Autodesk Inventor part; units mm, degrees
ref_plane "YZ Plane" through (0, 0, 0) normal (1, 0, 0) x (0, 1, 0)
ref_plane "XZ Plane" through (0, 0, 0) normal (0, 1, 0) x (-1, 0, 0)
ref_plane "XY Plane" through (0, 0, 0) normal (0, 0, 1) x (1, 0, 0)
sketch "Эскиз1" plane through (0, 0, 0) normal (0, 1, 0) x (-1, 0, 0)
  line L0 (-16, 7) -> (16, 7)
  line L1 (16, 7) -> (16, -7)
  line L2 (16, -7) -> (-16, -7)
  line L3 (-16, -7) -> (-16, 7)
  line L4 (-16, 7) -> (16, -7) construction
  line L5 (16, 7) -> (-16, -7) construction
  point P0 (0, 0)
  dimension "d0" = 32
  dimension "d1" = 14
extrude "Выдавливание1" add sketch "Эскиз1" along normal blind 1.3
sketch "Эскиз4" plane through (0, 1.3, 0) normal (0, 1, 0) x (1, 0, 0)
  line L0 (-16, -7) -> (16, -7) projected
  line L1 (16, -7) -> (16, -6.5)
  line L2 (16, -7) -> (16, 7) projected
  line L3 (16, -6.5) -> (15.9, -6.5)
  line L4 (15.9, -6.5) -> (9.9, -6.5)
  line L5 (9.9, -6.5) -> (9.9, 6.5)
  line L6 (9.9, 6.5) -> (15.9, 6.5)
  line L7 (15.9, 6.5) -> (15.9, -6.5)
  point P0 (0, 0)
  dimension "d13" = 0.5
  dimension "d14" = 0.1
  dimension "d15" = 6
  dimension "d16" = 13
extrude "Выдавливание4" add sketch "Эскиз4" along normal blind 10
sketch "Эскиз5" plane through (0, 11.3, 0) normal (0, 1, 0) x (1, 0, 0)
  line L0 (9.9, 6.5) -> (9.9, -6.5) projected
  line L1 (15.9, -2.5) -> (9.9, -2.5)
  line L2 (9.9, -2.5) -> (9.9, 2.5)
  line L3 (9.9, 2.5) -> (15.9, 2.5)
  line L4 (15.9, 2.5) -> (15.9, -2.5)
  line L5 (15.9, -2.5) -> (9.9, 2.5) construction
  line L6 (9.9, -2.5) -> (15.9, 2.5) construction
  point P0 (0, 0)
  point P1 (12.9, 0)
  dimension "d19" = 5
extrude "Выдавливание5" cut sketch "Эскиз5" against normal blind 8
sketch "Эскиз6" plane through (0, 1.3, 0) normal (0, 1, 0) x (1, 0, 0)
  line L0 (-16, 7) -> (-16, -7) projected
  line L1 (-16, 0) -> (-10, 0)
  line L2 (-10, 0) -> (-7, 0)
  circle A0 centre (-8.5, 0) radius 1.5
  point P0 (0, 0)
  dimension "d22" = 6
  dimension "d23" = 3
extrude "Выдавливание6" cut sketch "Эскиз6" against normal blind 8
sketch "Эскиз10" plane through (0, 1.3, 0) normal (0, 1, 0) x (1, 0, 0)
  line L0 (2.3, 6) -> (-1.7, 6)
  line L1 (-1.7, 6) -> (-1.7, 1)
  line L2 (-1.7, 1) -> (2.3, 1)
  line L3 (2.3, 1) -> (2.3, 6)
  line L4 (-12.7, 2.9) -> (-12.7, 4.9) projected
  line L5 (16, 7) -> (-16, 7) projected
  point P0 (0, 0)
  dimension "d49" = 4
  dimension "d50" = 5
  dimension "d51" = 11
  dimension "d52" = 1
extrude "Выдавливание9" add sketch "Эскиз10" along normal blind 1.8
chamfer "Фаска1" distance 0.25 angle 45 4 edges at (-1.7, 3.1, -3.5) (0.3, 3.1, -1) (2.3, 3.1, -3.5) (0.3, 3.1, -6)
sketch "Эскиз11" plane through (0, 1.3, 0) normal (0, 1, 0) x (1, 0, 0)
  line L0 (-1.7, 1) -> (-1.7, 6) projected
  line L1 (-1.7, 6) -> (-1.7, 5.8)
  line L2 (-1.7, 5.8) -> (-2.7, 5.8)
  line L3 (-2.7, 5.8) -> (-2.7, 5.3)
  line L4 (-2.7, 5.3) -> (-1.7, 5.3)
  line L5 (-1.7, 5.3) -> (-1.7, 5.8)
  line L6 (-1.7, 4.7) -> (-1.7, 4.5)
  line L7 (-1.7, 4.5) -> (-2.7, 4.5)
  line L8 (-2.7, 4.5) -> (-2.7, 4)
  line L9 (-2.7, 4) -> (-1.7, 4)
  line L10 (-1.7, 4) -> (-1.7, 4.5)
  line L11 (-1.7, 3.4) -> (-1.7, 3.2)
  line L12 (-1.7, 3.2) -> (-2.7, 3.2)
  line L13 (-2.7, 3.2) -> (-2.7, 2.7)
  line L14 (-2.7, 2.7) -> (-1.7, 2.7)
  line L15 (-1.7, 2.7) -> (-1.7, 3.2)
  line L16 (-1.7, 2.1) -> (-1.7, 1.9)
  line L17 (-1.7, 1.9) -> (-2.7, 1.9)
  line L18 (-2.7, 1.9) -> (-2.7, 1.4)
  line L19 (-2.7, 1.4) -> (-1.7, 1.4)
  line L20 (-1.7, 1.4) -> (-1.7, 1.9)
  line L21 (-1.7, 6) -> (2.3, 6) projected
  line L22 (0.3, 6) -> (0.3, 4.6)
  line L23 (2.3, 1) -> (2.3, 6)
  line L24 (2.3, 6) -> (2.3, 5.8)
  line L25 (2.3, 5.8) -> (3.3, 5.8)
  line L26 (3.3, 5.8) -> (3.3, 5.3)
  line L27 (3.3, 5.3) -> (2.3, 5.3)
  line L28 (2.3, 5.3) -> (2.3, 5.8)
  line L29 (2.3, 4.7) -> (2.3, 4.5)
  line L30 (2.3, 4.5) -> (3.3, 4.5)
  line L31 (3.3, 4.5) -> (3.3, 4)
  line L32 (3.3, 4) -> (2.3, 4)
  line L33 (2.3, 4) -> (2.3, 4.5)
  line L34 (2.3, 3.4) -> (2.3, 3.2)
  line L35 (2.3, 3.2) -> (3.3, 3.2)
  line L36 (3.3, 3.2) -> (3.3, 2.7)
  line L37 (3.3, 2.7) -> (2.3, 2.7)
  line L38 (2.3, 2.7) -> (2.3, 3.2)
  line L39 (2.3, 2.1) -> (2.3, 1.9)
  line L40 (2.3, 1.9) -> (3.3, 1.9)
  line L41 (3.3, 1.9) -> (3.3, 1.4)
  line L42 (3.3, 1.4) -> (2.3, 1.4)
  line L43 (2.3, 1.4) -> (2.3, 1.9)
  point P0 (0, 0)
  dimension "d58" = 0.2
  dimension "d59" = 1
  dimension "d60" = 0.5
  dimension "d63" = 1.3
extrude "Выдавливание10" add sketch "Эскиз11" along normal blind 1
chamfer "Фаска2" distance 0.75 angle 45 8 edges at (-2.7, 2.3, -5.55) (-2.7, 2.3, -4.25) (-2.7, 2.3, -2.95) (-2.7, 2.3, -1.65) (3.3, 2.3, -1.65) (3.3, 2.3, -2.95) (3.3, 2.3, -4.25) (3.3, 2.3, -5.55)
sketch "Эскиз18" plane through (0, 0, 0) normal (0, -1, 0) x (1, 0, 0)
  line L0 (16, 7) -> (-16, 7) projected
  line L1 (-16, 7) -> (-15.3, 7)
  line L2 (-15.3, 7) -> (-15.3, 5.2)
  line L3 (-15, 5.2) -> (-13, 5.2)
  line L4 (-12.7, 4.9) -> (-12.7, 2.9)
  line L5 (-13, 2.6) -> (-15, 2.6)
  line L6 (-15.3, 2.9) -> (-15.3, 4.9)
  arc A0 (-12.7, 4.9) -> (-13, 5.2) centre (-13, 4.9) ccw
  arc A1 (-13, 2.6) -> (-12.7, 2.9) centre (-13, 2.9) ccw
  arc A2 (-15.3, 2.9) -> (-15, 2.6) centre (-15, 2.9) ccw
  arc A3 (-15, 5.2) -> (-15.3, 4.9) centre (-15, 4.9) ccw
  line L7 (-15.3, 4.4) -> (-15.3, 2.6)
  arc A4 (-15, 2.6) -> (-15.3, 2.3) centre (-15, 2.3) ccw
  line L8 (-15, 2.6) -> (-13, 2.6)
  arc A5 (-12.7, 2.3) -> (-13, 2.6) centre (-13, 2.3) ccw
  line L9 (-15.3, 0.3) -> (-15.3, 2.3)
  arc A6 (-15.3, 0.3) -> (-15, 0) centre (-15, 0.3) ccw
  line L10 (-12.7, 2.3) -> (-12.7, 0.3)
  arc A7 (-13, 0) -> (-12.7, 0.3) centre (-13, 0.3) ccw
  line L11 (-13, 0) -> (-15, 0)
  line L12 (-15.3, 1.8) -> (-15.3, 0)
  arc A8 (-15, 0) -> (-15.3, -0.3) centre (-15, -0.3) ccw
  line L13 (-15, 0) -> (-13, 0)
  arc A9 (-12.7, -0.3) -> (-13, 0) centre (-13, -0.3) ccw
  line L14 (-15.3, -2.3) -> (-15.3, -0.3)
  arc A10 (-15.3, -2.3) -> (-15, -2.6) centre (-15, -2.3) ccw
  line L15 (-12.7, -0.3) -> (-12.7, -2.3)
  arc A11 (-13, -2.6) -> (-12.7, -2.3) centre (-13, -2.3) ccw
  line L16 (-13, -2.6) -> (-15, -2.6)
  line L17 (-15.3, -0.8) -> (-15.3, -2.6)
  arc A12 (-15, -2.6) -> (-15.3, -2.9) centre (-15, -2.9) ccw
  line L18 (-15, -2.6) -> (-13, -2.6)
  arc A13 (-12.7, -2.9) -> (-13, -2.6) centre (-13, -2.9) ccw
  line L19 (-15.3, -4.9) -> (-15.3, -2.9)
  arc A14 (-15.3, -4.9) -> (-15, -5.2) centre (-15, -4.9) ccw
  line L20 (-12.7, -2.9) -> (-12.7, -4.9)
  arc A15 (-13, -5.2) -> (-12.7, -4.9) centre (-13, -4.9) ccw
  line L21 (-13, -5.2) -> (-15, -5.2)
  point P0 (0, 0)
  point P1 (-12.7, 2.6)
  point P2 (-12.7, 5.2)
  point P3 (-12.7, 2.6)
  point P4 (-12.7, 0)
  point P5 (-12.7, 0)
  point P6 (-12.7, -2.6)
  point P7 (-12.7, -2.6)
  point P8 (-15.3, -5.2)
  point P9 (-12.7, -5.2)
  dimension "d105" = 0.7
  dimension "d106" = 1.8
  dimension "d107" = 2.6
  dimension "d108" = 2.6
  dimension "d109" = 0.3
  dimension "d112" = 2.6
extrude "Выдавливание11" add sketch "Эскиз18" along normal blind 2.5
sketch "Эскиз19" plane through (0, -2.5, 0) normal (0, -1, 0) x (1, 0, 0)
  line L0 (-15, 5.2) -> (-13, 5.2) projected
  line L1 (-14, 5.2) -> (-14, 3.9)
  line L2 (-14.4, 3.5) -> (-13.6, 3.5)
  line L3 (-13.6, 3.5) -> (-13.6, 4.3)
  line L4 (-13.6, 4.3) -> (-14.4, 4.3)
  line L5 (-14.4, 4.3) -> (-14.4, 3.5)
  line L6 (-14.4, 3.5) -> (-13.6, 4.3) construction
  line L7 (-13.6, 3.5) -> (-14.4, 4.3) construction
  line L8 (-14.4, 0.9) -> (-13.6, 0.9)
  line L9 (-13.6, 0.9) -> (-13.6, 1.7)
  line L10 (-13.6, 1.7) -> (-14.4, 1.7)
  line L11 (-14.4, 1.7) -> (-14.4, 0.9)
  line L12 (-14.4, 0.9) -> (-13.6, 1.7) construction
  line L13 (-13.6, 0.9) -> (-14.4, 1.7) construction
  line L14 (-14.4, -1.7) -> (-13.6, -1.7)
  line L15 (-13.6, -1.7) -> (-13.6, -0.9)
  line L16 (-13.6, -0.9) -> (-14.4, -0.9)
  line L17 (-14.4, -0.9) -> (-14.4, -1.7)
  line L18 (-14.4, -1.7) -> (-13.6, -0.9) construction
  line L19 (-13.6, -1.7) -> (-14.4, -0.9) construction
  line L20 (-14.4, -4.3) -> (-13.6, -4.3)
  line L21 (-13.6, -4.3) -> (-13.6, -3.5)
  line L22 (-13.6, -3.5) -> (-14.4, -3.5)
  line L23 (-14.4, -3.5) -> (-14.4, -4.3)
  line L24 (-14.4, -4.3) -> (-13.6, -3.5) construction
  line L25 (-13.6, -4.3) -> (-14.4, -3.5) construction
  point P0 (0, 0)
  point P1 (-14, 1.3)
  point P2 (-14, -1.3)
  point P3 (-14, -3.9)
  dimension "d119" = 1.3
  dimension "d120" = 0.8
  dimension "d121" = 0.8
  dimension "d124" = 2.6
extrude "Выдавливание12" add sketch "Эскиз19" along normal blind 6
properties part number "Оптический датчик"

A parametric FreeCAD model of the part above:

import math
import FreeCAD as App
import Part
import Sketcher
from FreeCAD import Vector
Q = App.Units.Quantity


def edges_at(feature, points):
    """Names of the edges that pass closest to the given points."""
    edges = feature.Shape.Edges
    near = lambda p: min(range(len(edges)), key=lambda i: edges[i].distToShape(Part.Vertex(*p))[0])
    return sorted({f"Edge{near(p) + 1}" for p in points})

doc = App.newDocument("Part")
body = doc.addObject("PartDesign::Body", "Body")

sketch1 = doc.addObject("Sketcher::SketchObject", "Sketch")
body.addObject(sketch1)
sketch1.AttachmentSupport = (doc.XZ_Plane, [""])
sketch1.MapMode = "FlatFace"
sketch1.addGeometry([
    Part.LineSegment(Vector(-16, 7, 0), Vector(16, 7, 0)),
    Part.LineSegment(Vector(16, 7, 0), Vector(16, -7, 0)),
    Part.LineSegment(Vector(16, -7, 0), Vector(-16, -7, 0)),
    Part.LineSegment(Vector(-16, -7, 0), Vector(-16, 7, 0)),
], False)
sketch1.addConstraint([
    Sketcher.Constraint("Coincident", 0, 2, 1, 1),
    Sketcher.Constraint("Coincident", 1, 2, 2, 1),
    Sketcher.Constraint("Coincident", 2, 2, 3, 1),
    Sketcher.Constraint("Coincident", 3, 2, 0, 1),
    Sketcher.Constraint("Horizontal", 0),
    Sketcher.Constraint("Vertical", 1),
    Sketcher.Constraint("Horizontal", 2),
    Sketcher.Constraint("Vertical", 3),
    Sketcher.Constraint("Symmetric", 0, 2, 2, 2, -1, 1),
    Sketcher.Constraint("DistanceX", 0, 1, 0, 2, Q("32 mm")),
    Sketcher.Constraint("DistanceY", 1, 2, 1, 1, Q("14 mm")),
])
pad1 = doc.addObject("PartDesign::Pad", "Pad")
body.addObject(pad1)
pad1.Profile = sketch1
pad1.Length = 1.3
pad1.Reversed = True

sketch2 = doc.addObject("Sketcher::SketchObject", "Sketch001")
body.addObject(sketch2)
sketch2.AttachmentSupport = (doc.XZ_Plane, [""])
sketch2.MapMode = "FlatFace"
sketch2.AttachmentOffset = App.Placement(Vector(0, 0, -1.3), App.Rotation())
sketch2.addGeometry([
    Part.LineSegment(Vector(10, 6, 0), Vector(16, 6, 0)),
    Part.LineSegment(Vector(16, 6, 0), Vector(16, -6, 0)),
    Part.LineSegment(Vector(16, -6, 0), Vector(10, -6, 0)),
    Part.LineSegment(Vector(10, -6, 0), Vector(10, 6, 0)),
], False)
sketch2.addConstraint([
    Sketcher.Constraint("Coincident", 0, 2, 1, 1),
    Sketcher.Constraint("Coincident", 1, 2, 2, 1),
    Sketcher.Constraint("Coincident", 2, 2, 3, 1),
    Sketcher.Constraint("Coincident", 3, 2, 0, 1),
    Sketcher.Constraint("Horizontal", 0),
    Sketcher.Constraint("Vertical", 1),
    Sketcher.Constraint("Horizontal", 2),
    Sketcher.Constraint("Vertical", 3),
    Sketcher.Constraint("DistanceX", 0, 1, 0, 2, Q("6 mm")),
    Sketcher.Constraint("DistanceY", 1, 2, 1, 1, Q("13 mm")),
    Sketcher.Constraint("DistanceX", -1, 1, 0, 2, Q("15.9 mm")),
    Sketcher.Constraint("DistanceY", -1, 1, 0, 2, Q("6.5 mm")),
])
pad2 = doc.addObject("PartDesign::Pad", "Pad001")
body.addObject(pad2)
pad2.Profile = sketch2
pad2.Length = 10
pad2.Reversed = True

sketch3 = doc.addObject("Sketcher::SketchObject", "Sketch002")
body.addObject(sketch3)
sketch3.AttachmentSupport = (doc.XZ_Plane, [""])
sketch3.MapMode = "FlatFace"
sketch3.AttachmentOffset = App.Placement(Vector(0, 0, -11.3), App.Rotation())
sketch3.addGeometry([
    Part.LineSegment(Vector(16, -2, 0), Vector(10, -2, 0)),
    Part.LineSegment(Vector(10, -2, 0), Vector(10, 2, 0)),
    Part.LineSegment(Vector(10, 2, 0), Vector(16, 2, 0)),
    Part.LineSegment(Vector(16, 2, 0), Vector(16, -2, 0)),
], False)
sketch3.addConstraint([
    Sketcher.Constraint("Coincident", 0, 2, 1, 1),
    Sketcher.Constraint("Coincident", 1, 2, 2, 1),
    Sketcher.Constraint("Coincident", 2, 2, 3, 1),
    Sketcher.Constraint("Coincident", 3, 2, 0, 1),
    Sketcher.Constraint("Horizontal", 0),
    Sketcher.Constraint("Vertical", 1),
    Sketcher.Constraint("Horizontal", 2),
    Sketcher.Constraint("Vertical", 3),
    Sketcher.Constraint("DistanceY", 1, 1, 1, 2, Q("5 mm")),
    Sketcher.Constraint("DistanceX", 0, 2, 0, 1, Q("6 mm")),
    Sketcher.Constraint("DistanceX", -1, 1, 0, 2, Q("9.9 mm")),
    Sketcher.Constraint("DistanceY", 0, 2, -1, 1, Q("2.5 mm")),
])
pocket1 = doc.addObject("PartDesign::Pocket", "Pocket")
body.addObject(pocket1)
pocket1.Profile = sketch3
pocket1.Length = 8
pocket1.Reversed = True

sketch4 = doc.addObject("Sketcher::SketchObject", "Sketch003")
body.addObject(sketch4)
sketch4.AttachmentSupport = (doc.XZ_Plane, [""])
sketch4.MapMode = "FlatFace"
sketch4.AttachmentOffset = App.Placement(Vector(0, 0, -1.3), App.Rotation())
sketch4.addGeometry(Part.Circle(Vector(-8.5, 0, 0), Vector(0, 0, 1), 1.5), False)
sketch4.addConstraint([
    Sketcher.Constraint("PointOnObject", 0, 3, -1),
    Sketcher.Constraint("Diameter", 0, Q("3 mm")),
    Sketcher.Constraint("DistanceX", 0, 3, -1, 1, Q("8.5 mm")),
])
pocket2 = doc.addObject("PartDesign::Pocket", "Pocket001")
body.addObject(pocket2)
pocket2.Profile = sketch4
pocket2.Length = 8
pocket2.Reversed = True

sketch5 = doc.addObject("Sketcher::SketchObject", "Sketch004")
body.addObject(sketch5)
sketch5.AttachmentSupport = (doc.XZ_Plane, [""])
sketch5.MapMode = "FlatFace"
sketch5.AttachmentOffset = App.Placement(Vector(0, 0, -1.3), App.Rotation())
sketch5.addGeometry([
    Part.LineSegment(Vector(2.3, -1, 0), Vector(2.3, -6, 0)),
    Part.LineSegment(Vector(2.3, -6, 0), Vector(-1.7, -6, 0)),
    Part.LineSegment(Vector(-1.7, -6, 0), Vector(-1.7, -1, 0)),
    Part.LineSegment(Vector(-1.7, -1, 0), Vector(2.3, -1, 0)),
], False)
sketch5.addConstraint([
    Sketcher.Constraint("Coincident", 0, 2, 1, 1),
    Sketcher.Constraint("Coincident", 1, 2, 2, 1),
    Sketcher.Constraint("Coincident", 2, 2, 3, 1),
    Sketcher.Constraint("Coincident", 3, 2, 0, 1),
    Sketcher.Constraint("Vertical", 0),
    Sketcher.Constraint("Horizontal", 1),
    Sketcher.Constraint("Vertical", 2),
    Sketcher.Constraint("Horizontal", 3),
    Sketcher.Constraint("DistanceX", 1, 2, 1, 1, Q("4 mm")),
    Sketcher.Constraint("DistanceY", 0, 2, 0, 1, Q("5 mm")),
    Sketcher.Constraint("DistanceY", 2, 2, -1, 1, Q("1 mm")),
    Sketcher.Constraint("DistanceX", -1, 1, 0, 2, Q("2.3 mm")),
])
pad3 = doc.addObject("PartDesign::Pad", "Pad002")
body.addObject(pad3)
pad3.Profile = sketch5
pad3.Length = 1.8
pad3.Reversed = True
doc.recompute()

chamfer = doc.addObject("PartDesign::Chamfer", "Chamfer")
body.addObject(chamfer)
chamfer.Base = (pad3, edges_at(pad3, [
    (-1.7, 3.1, -3.5),
    (0.3, 3.1, -1),
    (2.3, 3.1, -3.5),
    (0.3, 3.1, -6),
]))
chamfer.Size = 0.25

sketch6 = doc.addObject("Sketcher::SketchObject", "Sketch005")
body.addObject(sketch6)
sketch6.AttachmentSupport = (doc.XZ_Plane, [""])
sketch6.MapMode = "FlatFace"
sketch6.AttachmentOffset = App.Placement(Vector(0, 0, -1.3), App.Rotation())
sketch6.addGeometry([
    Part.LineSegment(Vector(-2.7, -1.4, 0), Vector(-1.7, -1.4, 0)),
    Part.LineSegment(Vector(-1.7, -1.4, 0), Vector(-1.7, -1.9, 0)),
    Part.LineSegment(Vector(-1.7, -1.9, 0), Vector(-2.7, -1.9, 0)),
    Part.LineSegment(Vector(-2.7, -1.9, 0), Vector(-2.7, -1.4, 0)),
    Part.LineSegment(Vector(3.3, -1.9, 0), Vector(2.3, -1.9, 0)),
    Part.LineSegment(Vector(2.3, -1.9, 0), Vector(2.3, -1.4, 0)),
    Part.LineSegment(Vector(2.3, -1.4, 0), Vector(3.3, -1.4, 0)),
    Part.LineSegment(Vector(3.3, -1.4, 0), Vector(3.3, -1.9, 0)),
    Part.LineSegment(Vector(3.3, -3.2, 0), Vector(2.3, -3.2, 0)),
    Part.LineSegment(Vector(2.3, -3.2, 0), Vector(2.3, -2.7, 0)),
    Part.LineSegment(Vector(2.3, -2.7, 0), Vector(3.3, -2.7, 0)),
    Part.LineSegment(Vector(3.3, -2.7, 0), Vector(3.3, -3.2, 0)),
    Part.LineSegment(Vector(3.3, -4.5, 0), Vector(2.3, -4.5, 0)),
    Part.LineSegment(Vector(2.3, -4.5, 0), Vector(2.3, -4, 0)),
    Part.LineSegment(Vector(2.3, -4, 0), Vector(3.3, -4, 0)),
    Part.LineSegment(Vector(3.3, -4, 0), Vector(3.3, -4.5, 0)),
    Part.LineSegment(Vector(3.3, -5.8, 0), Vector(2.3, -5.8, 0)),
    Part.LineSegment(Vector(2.3, -5.8, 0), Vector(2.3, -5.3, 0)),
    Part.LineSegment(Vector(2.3, -5.3, 0), Vector(3.3, -5.3, 0)),
    Part.LineSegment(Vector(3.3, -5.3, 0), Vector(3.3, -5.8, 0)),
    Part.LineSegment(Vector(-2.7, -5.3, 0), Vector(-1.7, -5.3, 0)),
    Part.LineSegment(Vector(-1.7, -5.3, 0), Vector(-1.7, -5.8, 0)),
    Part.LineSegment(Vector(-1.7, -5.8, 0), Vector(-2.7, -5.8, 0)),
    Part.LineSegment(Vector(-2.7, -5.8, 0), Vector(-2.7, -5.3, 0)),
    Part.LineSegment(Vector(-2.7, -4, 0), Vector(-1.7, -4, 0)),
    Part.LineSegment(Vector(-1.7, -4, 0), Vector(-1.7, -4.5, 0)),
    Part.LineSegment(Vector(-1.7, -4.5, 0), Vector(-2.7, -4.5, 0)),
    Part.LineSegment(Vector(-2.7, -4.5, 0), Vector(-2.7, -4, 0)),
    Part.LineSegment(Vector(-2.7, -2.7, 0), Vector(-1.7, -2.7, 0)),
    Part.LineSegment(Vector(-1.7, -2.7, 0), Vector(-1.7, -3.2, 0)),
    Part.LineSegment(Vector(-1.7, -3.2, 0), Vector(-2.7, -3.2, 0)),
    Part.LineSegment(Vector(-2.7, -3.2, 0), Vector(-2.7, -2.7, 0)),
], False)
sketch6.addConstraint([
    Sketcher.Constraint("Coincident", 0, 2, 1, 1),
    Sketcher.Constraint("Coincident", 1, 2, 2, 1),
    Sketcher.Constraint("Coincident", 2, 2, 3, 1),
    Sketcher.Constraint("Coincident", 3, 2, 0, 1),
    Sketcher.Constraint("Coincident", 4, 2, 5, 1),
    Sketcher.Constraint("Coincident", 5, 2, 6, 1),
    Sketcher.Constraint("Coincident", 6, 2, 7, 1),
    Sketcher.Constraint("Coincident", 7, 2, 4, 1),
    Sketcher.Constraint("Coincident", 8, 2, 9, 1),
    Sketcher.Constraint("Coincident", 9, 2, 10, 1),
    Sketcher.Constraint("Coincident", 10, 2, 11, 1),
    Sketcher.Constraint("Coincident", 11, 2, 8, 1),
    Sketcher.Constraint("Coincident", 12, 2, 13, 1),
    Sketcher.Constraint("Coincident", 13, 2, 14, 1),
    Sketcher.Constraint("Coincident", 14, 2, 15, 1),
    Sketcher.Constraint("Coincident", 15, 2, 12, 1),
    Sketcher.Constraint("Coincident", 16, 2, 17, 1),
    Sketcher.Constraint("Coincident", 17, 2, 18, 1),
    Sketcher.Constraint("Coincident", 18, 2, 19, 1),
    Sketcher.Constraint("Coincident", 19, 2, 16, 1),
    Sketcher.Constraint("Coincident", 20, 2, 21, 1),
    Sketcher.Constraint("Coincident", 21, 2, 22, 1),
    Sketcher.Constraint("Coincident", 22, 2, 23, 1),
    Sketcher.Constraint("Coincident", 23, 2, 20, 1),
    Sketcher.Constraint("Coincident", 24, 2, 25, 1),
    Sketcher.Constraint("Coincident", 25, 2, 26, 1),
    Sketcher.Constraint("Coincident", 26, 2, 27, 1),
    Sketcher.Constraint("Coincident", 27, 2, 24, 1),
    Sketcher.Constraint("Coincident", 28, 2, 29, 1),
    Sketcher.Constraint("Coincident", 29, 2, 30, 1),
    Sketcher.Constraint("Coincident", 30, 2, 31, 1),
    Sketcher.Constraint("Coincident", 31, 2, 28, 1),
    Sketcher.Constraint("Horizontal", 0),
    Sketcher.Constraint("Vertical", 1),
    Sketcher.Constraint("Horizontal", 2),
    Sketcher.Constraint("Vertical", 3),
    Sketcher.Constraint("Horizontal", 4),
    Sketcher.Constraint("Vertical", 5),
    Sketcher.Constraint("Horizontal", 6),
    Sketcher.Constraint("Vertical", 7),
    Sketcher.Constraint("Horizontal", 8),
    Sketcher.Constraint("Vertical", 9),
    Sketcher.Constraint("Horizontal", 10),
    Sketcher.Constraint("Vertical", 11),
    Sketcher.Constraint("Horizontal", 12),
    Sketcher.Constraint("Vertical", 13),
    Sketcher.Constraint("Horizontal", 14),
    Sketcher.Constraint("Vertical", 15),
    Sketcher.Constraint("Horizontal", 16),
    Sketcher.Constraint("Vertical", 17),
    Sketcher.Constraint("Horizontal", 18),
    Sketcher.Constraint("Vertical", 19),
    Sketcher.Constraint("Horizontal", 20),
    Sketcher.Constraint("Vertical", 21),
    Sketcher.Constraint("Horizontal", 22),
    Sketcher.Constraint("Vertical", 23),
    Sketcher.Constraint("Horizontal", 24),
    Sketcher.Constraint("Vertical", 25),
    Sketcher.Constraint("Horizontal", 26),
    Sketcher.Constraint("Vertical", 27),
    Sketcher.Constraint("Horizontal", 28),
    Sketcher.Constraint("Vertical", 29),
    Sketcher.Constraint("Horizontal", 30),
    Sketcher.Constraint("Vertical", 31),
    Sketcher.Constraint("Horizontal", 2, 2, 4, 2),
    Sketcher.Constraint("Horizontal", 3, 2, 5, 2),
    Sketcher.Constraint("Horizontal", 18, 2, 20, 2),
    Sketcher.Constraint("Horizontal", 19, 2, 21, 2),
    Sketcher.Constraint("Horizontal", 14, 2, 24, 2),
    Sketcher.Constraint("Horizontal", 15, 2, 25, 2),
    Sketcher.Constraint("Horizontal", 10, 2, 28, 2),
    Sketcher.Constraint("Horizontal", 11, 2, 29, 2),
    Sketcher.Constraint("Vertical", 5, 2, 8, 2),
    Sketcher.Constraint("Vertical", 7, 2, 10, 2),
    Sketcher.Constraint("Vertical", 9, 2, 12, 2),
    Sketcher.Constraint("Vertical", 11, 2, 14, 2),
    Sketcher.Constraint("Vertical", 13, 2, 16, 2),
    Sketcher.Constraint("Vertical", 15, 2, 18, 2),
    Sketcher.Constraint("Vertical", 1, 2, 20, 2),
    Sketcher.Constraint("Vertical", 3, 2, 22, 2),
    Sketcher.Constraint("Vertical", 21, 2, 24, 2),
    Sketcher.Constraint("Vertical", 23, 2, 26, 2),
    Sketcher.Constraint("Vertical", 25, 2, 28, 2),
    Sketcher.Constraint("Vertical", 27, 2, 30, 2),
    Sketcher.Constraint("Equal", 2, 4),
    Sketcher.Constraint("Equal", 7, 9),
    Sketcher.Constraint("Equal", 11, 13),
    Sketcher.Constraint("Equal", 15, 17),
    Sketcher.Constraint("DistanceX", 0, 1, 0, 2, Q("1 mm")),
    Sketcher.Constraint("DistanceY", 1, 2, 1, 1, Q("0.5 mm")),
    Sketcher.Constraint("DistanceY", 8, 2, 4, 2, Q("1.3 mm")),
    Sketcher.Constraint("DistanceY", 12, 2, 8, 2, Q("1.3 mm")),
    Sketcher.Constraint("DistanceY", 16, 2, 12, 2, Q("1.3 mm")),
    Sketcher.Constraint("DistanceY", 13, 2, -1, 1, Q("4 mm")),
    Sketcher.Constraint("DistanceX", 1, 2, 4, 2, Q("4 mm")),
    Sketcher.Constraint("DistanceX", 0, 2, -1, 1, Q("1.7 mm")),
])
pad4 = doc.addObject("PartDesign::Pad", "Pad003")
body.addObject(pad4)
pad4.Profile = sketch6
pad4.Length = 1
pad4.Reversed = True
doc.recompute()

chamfer2 = doc.addObject("PartDesign::Chamfer", "Chamfer001")
body.addObject(chamfer2)
chamfer2.Base = (pad4, edges_at(pad4, [
    (-2.7, 2.3, -5.55),
    (-2.7, 2.3, -4.25),
    (-2.7, 2.3, -2.95),
    (-2.7, 2.3, -1.65),
    (3.3, 2.3, -1.65),
    (3.3, 2.3, -2.95),
    (3.3, 2.3, -4.25),
    (3.3, 2.3, -5.55),
]))
chamfer2.Size = 0.75

sketch7 = doc.addObject("Sketcher::SketchObject", "Sketch006")
body.addObject(sketch7)
sketch7.AttachmentSupport = (doc.XZ_Plane, [""])
sketch7.MapMode = "FlatFace"
sketch7.addGeometry([
    Part.LineSegment(Vector(-13, 5.2, 0), Vector(-15, 5.2, 0)),
    Part.ArcOfCircle(Part.Circle(Vector(-15, 4.9, 0), Vector(0, 0, 1), 0.3), math.radians(90), math.radians(180)),
    Part.LineSegment(Vector(-15.3, 4.9, 0), Vector(-15.3, 2.9, 0)),
    Part.ArcOfCircle(Part.Circle(Vector(-15, 2.9, 0), Vector(0, 0, 1), 0.3), math.radians(180), math.radians(270)),
    Part.ArcOfCircle(Part.Circle(Vector(-15, 2.3, 0), Vector(0, 0, 1), 0.3), math.radians(90), math.radians(180)),
    Part.LineSegment(Vector(-15.3, 2.3, 0), Vector(-15.3, 0.3, 0)),
    Part.ArcOfCircle(Part.Circle(Vector(-15, 0.3, 0), Vector(0, 0, 1), 0.3), math.radians(180), math.radians(270)),
    Part.ArcOfCircle(Part.Circle(Vector(-15, -0.3, 0), Vector(0, 0, 1), 0.3), math.radians(90), math.radians(180)),
    Part.LineSegment(Vector(-15.3, -0.3, 0), Vector(-15.3, -2.3, 0)),
    Part.ArcOfCircle(Part.Circle(Vector(-15, -2.3, 0), Vector(0, 0, 1), 0.3), math.radians(180), math.radians(270)),
    Part.ArcOfCircle(Part.Circle(Vector(-15, -2.9, 0), Vector(0, 0, 1), 0.3), math.radians(90), math.radians(180)),
    Part.LineSegment(Vector(-15.3, -2.9, 0), Vector(-15.3, -4.9, 0)),
    Part.ArcOfCircle(Part.Circle(Vector(-15, -4.9, 0), Vector(0, 0, 1), 0.3), math.radians(180), math.radians(270)),
    Part.LineSegment(Vector(-15, -5.2, 0), Vector(-13, -5.2, 0)),
    Part.ArcOfCircle(Part.Circle(Vector(-13, -4.9, 0), Vector(0, 0, 1), 0.3), math.radians(-90), math.radians(0)),
    Part.LineSegment(Vector(-12.7, -4.9, 0), Vector(-12.7, -2.9, 0)),
    Part.ArcOfCircle(Part.Circle(Vector(-13, -2.9, 0), Vector(0, 0, 1), 0.3), math.radians(0), math.radians(90)),
    Part.ArcOfCircle(Part.Circle(Vector(-13, -2.3, 0), Vector(0, 0, 1), 0.3), math.radians(-90), math.radians(0)),
    Part.LineSegment(Vector(-12.7, -2.3, 0), Vector(-12.7, -0.3, 0)),
    Part.ArcOfCircle(Part.Circle(Vector(-13, -0.3, 0), Vector(0, 0, 1), 0.3), math.radians(0), math.radians(90)),
    Part.ArcOfCircle(Part.Circle(Vector(-13, 0.3, 0), Vector(0, 0, 1), 0.3), math.radians(-90), math.radians(0)),
    Part.LineSegment(Vector(-12.7, 0.3, 0), Vector(-12.7, 2.3, 0)),
    Part.ArcOfCircle(Part.Circle(Vector(-13, 2.3, 0), Vector(0, 0, 1), 0.3), math.radians(0), math.radians(90)),
    Part.ArcOfCircle(Part.Circle(Vector(-13, 2.9, 0), Vector(0, 0, 1), 0.3), math.radians(-90), math.radians(0)),
    Part.LineSegment(Vector(-12.7, 2.9, 0), Vector(-12.7, 4.9, 0)),
    Part.ArcOfCircle(Part.Circle(Vector(-13, 4.9, 0), Vector(0, 0, 1), 0.3), math.radians(0), math.radians(90)),
], False)
sketch7.addConstraint([
    Sketcher.Constraint("Tangent", 0, 2, 1, 1),
    Sketcher.Constraint("Tangent", 1, 2, 2, 1),
    Sketcher.Constraint("Tangent", 2, 2, 3, 1),
    Sketcher.Constraint("Tangent", 3, 2, 4, 1),
    Sketcher.Constraint("Tangent", 4, 2, 5, 1),
    Sketcher.Constraint("Tangent", 5, 2, 6, 1),
    Sketcher.Constraint("Tangent", 6, 2, 7, 1),
    Sketcher.Constraint("Tangent", 7, 2, 8, 1),
    Sketcher.Constraint("Tangent", 8, 2, 9, 1),
    Sketcher.Constraint("Tangent", 9, 2, 10, 1),
    Sketcher.Constraint("Tangent", 10, 2, 11, 1),
    Sketcher.Constraint("Tangent", 11, 2, 12, 1),
    Sketcher.Constraint("Tangent", 12, 2, 13, 1),
    Sketcher.Constraint("Tangent", 13, 2, 14, 1),
    Sketcher.Constraint("Tangent", 14, 2, 15, 1),
    Sketcher.Constraint("Tangent", 15, 2, 16, 1),
    Sketcher.Constraint("Tangent", 16, 2, 17, 1),
    Sketcher.Constraint("Tangent", 17, 2, 18, 1),
    Sketcher.Constraint("Tangent", 18, 2, 19, 1),
    Sketcher.Constraint("Tangent", 19, 2, 20, 1),
    Sketcher.Constraint("Tangent", 20, 2, 21, 1),
    Sketcher.Constraint("Tangent", 21, 2, 22, 1),
    Sketcher.Constraint("Tangent", 22, 2, 23, 1),
    Sketcher.Constraint("Tangent", 23, 2, 24, 1),
    Sketcher.Constraint("Tangent", 24, 2, 25, 1),
    Sketcher.Constraint("Tangent", 25, 2, 0, 1),
    Sketcher.Constraint("Horizontal", 0),
    Sketcher.Constraint("Vertical", 2),
    Sketcher.Constraint("Vertical", 5),
    Sketcher.Constraint("Vertical", 8),
    Sketcher.Constraint("Vertical", 11),
    Sketcher.Constraint("Horizontal", 13),
    Sketcher.Constraint("Vertical", 15),
    Sketcher.Constraint("Vertical", 18),
    Sketcher.Constraint("Vertical", 21),
    Sketcher.Constraint("Vertical", 24),
    Sketcher.Constraint("Equal", 1, 3),
    Sketcher.Constraint("Equal", 3, 4),
    Sketcher.Constraint("Equal", 4, 6),
    Sketcher.Constraint("Equal", 6, 7),
    Sketcher.Constraint("Equal", 7, 9),
    Sketcher.Constraint("Equal", 9, 10),
    Sketcher.Constraint("Equal", 10, 12),
    Sketcher.Constraint("Equal", 12, 14),
    Sketcher.Constraint("Equal", 14, 16),
    Sketcher.Constraint("Equal", 16, 17),
    Sketcher.Constraint("Equal", 17, 19),
    Sketcher.Constraint("Equal", 19, 20),
    Sketcher.Constraint("Equal", 20, 22),
    Sketcher.Constraint("Equal", 22, 23),
    Sketcher.Constraint("Equal", 23, 25),
    Sketcher.Constraint("Symmetric", 6, 3, 7, 3, -1),
    Sketcher.Constraint("Symmetric", 3, 3, 10, 3, -1),
    Sketcher.Constraint("Symmetric", 19, 3, 20, 3, -1),
    Sketcher.Constraint("Symmetric", 16, 3, 23, 3, -1),
    Sketcher.Constraint("Horizontal", 10, 3, 16, 3),
    Sketcher.Constraint("Vertical", 3, 3, 4, 3),
    Sketcher.Constraint("Vertical", 16, 3, 17, 3),
    Sketcher.Constraint("Equal", 13, 2),
    Sketcher.Constraint("Equal", 2, 5),
    Sketcher.Constraint("Equal", 8, 11),
    Sketcher.Constraint("Radius", 1, Q("0.3 mm")),
    Sketcher.Constraint("DistanceY", -1, 1, 3, 2, Q("2.6 mm")),
    Sketcher.Constraint("DistanceX", 1, 3, -1, 1, Q("15 mm")),
])
pad5 = doc.addObject("PartDesign::Pad", "Pad004")
body.addObject(pad5)
pad5.Profile = sketch7
pad5.Length = 2.5

sketch8 = doc.addObject("Sketcher::SketchObject", "Sketch007")
body.addObject(sketch8)
sketch8.AttachmentSupport = (doc.XZ_Plane, [""])
sketch8.MapMode = "FlatFace"
sketch8.AttachmentOffset = App.Placement(Vector(0, 0, 2.5), App.Rotation())
sketch8.addGeometry([
    Part.LineSegment(Vector(-14.4, 4.3, 0), Vector(-14.4, 3.5, 0)),
    Part.LineSegment(Vector(-14.4, 3.5, 0), Vector(-13.6, 3.5, 0)),
    Part.LineSegment(Vector(-13.6, 3.5, 0), Vector(-13.6, 4.3, 0)),
    Part.LineSegment(Vector(-13.6, 4.3, 0), Vector(-14.4, 4.3, 0)),
    Part.LineSegment(Vector(-14.4, 1.7, 0), Vector(-14.4, 0.9, 0)),
    Part.LineSegment(Vector(-14.4, 0.9, 0), Vector(-13.6, 0.9, 0)),
    Part.LineSegment(Vector(-13.6, 0.9, 0), Vector(-13.6, 1.7, 0)),
    Part.LineSegment(Vector(-13.6, 1.7, 0), Vector(-14.4, 1.7, 0)),
    Part.LineSegment(Vector(-14.4, -0.9, 0), Vector(-14.4, -1.7, 0)),
    Part.LineSegment(Vector(-14.4, -1.7, 0), Vector(-13.6, -1.7, 0)),
    Part.LineSegment(Vector(-13.6, -1.7, 0), Vector(-13.6, -0.9, 0)),
    Part.LineSegment(Vector(-13.6, -0.9, 0), Vector(-14.4, -0.9, 0)),
    Part.LineSegment(Vector(-14.4, -3.5, 0), Vector(-14.4, -4.3, 0)),
    Part.LineSegment(Vector(-14.4, -4.3, 0), Vector(-13.6, -4.3, 0)),
    Part.LineSegment(Vector(-13.6, -4.3, 0), Vector(-13.6, -3.5, 0)),
    Part.LineSegment(Vector(-13.6, -3.5, 0), Vector(-14.4, -3.5, 0)),
], False)
sketch8.addConstraint([
    Sketcher.Constraint("Coincident", 0, 2, 1, 1),
    Sketcher.Constraint("Coincident", 1, 2, 2, 1),
    Sketcher.Constraint("Coincident", 2, 2, 3, 1),
    Sketcher.Constraint("Coincident", 3, 2, 0, 1),
    Sketcher.Constraint("Coincident", 4, 2, 5, 1),
    Sketcher.Constraint("Coincident", 5, 2, 6, 1),
    Sketcher.Constraint("Coincident", 6, 2, 7, 1),
    Sketcher.Constraint("Coincident", 7, 2, 4, 1),
    Sketcher.Constraint("Coincident", 8, 2, 9, 1),
    Sketcher.Constraint("Coincident", 9, 2, 10, 1),
    Sketcher.Constraint("Coincident", 10, 2, 11, 1),
    Sketcher.Constraint("Coincident", 11, 2, 8, 1),
    Sketcher.Constraint("Coincident", 12, 2, 13, 1),
    Sketcher.Constraint("Coincident", 13, 2, 14, 1),
    Sketcher.Constraint("Coincident", 14, 2, 15, 1),
    Sketcher.Constraint("Coincident", 15, 2, 12, 1),
    Sketcher.Constraint("Vertical", 0),
    Sketcher.Constraint("Horizontal", 1),
    Sketcher.Constraint("Vertical", 2),
    Sketcher.Constraint("Horizontal", 3),
    Sketcher.Constraint("Vertical", 4),
    Sketcher.Constraint("Horizontal", 5),
    Sketcher.Constraint("Vertical", 6),
    Sketcher.Constraint("Horizontal", 7),
    Sketcher.Constraint("Vertical", 8),
    Sketcher.Constraint("Horizontal", 9),
    Sketcher.Constraint("Vertical", 10),
    Sketcher.Constraint("Horizontal", 11),
    Sketcher.Constraint("Vertical", 12),
    Sketcher.Constraint("Horizontal", 13),
    Sketcher.Constraint("Vertical", 14),
    Sketcher.Constraint("Horizontal", 15),
    Sketcher.Constraint("Symmetric", 7, 2, 8, 2, -1),
    Sketcher.Constraint("Symmetric", 5, 2, 10, 2, -1),
    Sketcher.Constraint("Symmetric", 3, 2, 12, 2, -1),
    Sketcher.Constraint("Symmetric", 1, 2, 14, 2, -1),
    Sketcher.Constraint("Vertical", 3, 2, 4, 2),
    Sketcher.Constraint("Vertical", 2, 2, 5, 2),
    Sketcher.Constraint("Equal", 15, 0),
    Sketcher.Constraint("Equal", 2, 4),
    Sketcher.Constraint("DistanceX", 1, 1, 1, 2, Q("0.8 mm")),
    Sketcher.Constraint("DistanceY", 4, 2, 0, 2, Q("2.6 mm")),
    Sketcher.Constraint("DistanceY", 8, 2, 4, 2, Q("2.6 mm")),
    Sketcher.Constraint("DistanceX", 0, 2, -1, 1, Q("14.4 mm")),
])
pad6 = doc.addObject("PartDesign::Pad", "Pad005")
body.addObject(pad6)
pad6.Profile = sketch8
pad6.Length = 6

doc.recompute()
